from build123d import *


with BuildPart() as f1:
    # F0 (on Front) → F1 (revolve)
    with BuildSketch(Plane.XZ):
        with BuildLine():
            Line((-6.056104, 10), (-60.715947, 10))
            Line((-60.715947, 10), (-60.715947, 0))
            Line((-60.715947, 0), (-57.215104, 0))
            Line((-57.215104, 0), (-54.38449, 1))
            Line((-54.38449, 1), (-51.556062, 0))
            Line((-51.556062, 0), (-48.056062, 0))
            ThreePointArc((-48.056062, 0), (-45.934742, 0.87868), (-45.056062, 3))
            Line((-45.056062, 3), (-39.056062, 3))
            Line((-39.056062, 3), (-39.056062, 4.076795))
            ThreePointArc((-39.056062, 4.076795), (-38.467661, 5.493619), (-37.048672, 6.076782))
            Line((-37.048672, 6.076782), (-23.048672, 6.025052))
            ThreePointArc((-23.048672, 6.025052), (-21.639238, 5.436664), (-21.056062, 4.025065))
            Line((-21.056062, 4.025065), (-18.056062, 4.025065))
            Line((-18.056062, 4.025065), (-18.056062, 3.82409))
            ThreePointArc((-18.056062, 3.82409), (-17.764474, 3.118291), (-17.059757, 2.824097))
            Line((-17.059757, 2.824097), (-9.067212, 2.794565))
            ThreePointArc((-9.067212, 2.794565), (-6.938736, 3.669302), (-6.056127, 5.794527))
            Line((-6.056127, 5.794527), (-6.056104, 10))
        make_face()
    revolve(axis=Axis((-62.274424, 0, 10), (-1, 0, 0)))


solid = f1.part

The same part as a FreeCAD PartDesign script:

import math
import FreeCAD as App
import Part
import Sketcher
from FreeCAD import Vector

doc = App.newDocument("Part")
body = doc.addObject("PartDesign::Body", "Body")

# Sketch on XZ plane
sketch1 = doc.addObject("Sketcher::SketchObject", "Sketch")
body.addObject(sketch1)
sketch1.AttachmentSupport = (doc.XZ_Plane, [""])
sketch1.MapMode = "FlatFace"
sketch1.addGeometry([
    Part.LineSegment(Vector(-6.06, 10, 0), Vector(-60.72, 10, 0)),  # 0
    Part.LineSegment(Vector(-60.72, 10, 0), Vector(-60.72, 0, 0)),  # 1
    Part.LineSegment(Vector(-60.72, 0, 0), Vector(-57.22, 0, 0)),  # 2
    Part.LineSegment(Vector(-57.22, 0, 0), Vector(-54.38, 1, 0)),  # 3
    Part.LineSegment(Vector(-54.38, 1, 0), Vector(-51.56, 0, 0)),  # 4
    Part.LineSegment(Vector(-51.56, 0, 0), Vector(-48.06, 0, 0)),  # 5
    Part.ArcOfCircle(Part.Circle(Vector(-48.06, 3, 0), Vector(0, 0, 1), 3), math.radians(-90), math.radians(0)),  # 6
    Part.LineSegment(Vector(-45.06, 3, 0), Vector(-39.06, 3, 0)),  # 7
    Part.LineSegment(Vector(-39.06, 3, 0), Vector(-39.06, 4.08, 0)),  # 8
    Part.ArcOfCircle(Part.Circle(Vector(-37.06, 4.08, 0), Vector(0, 0, 1), 2), math.radians(90), math.radians(180)),  # 9
    Part.LineSegment(Vector(-37.05, 6.08, 0), Vector(-23.05, 6.03, 0)),  # 10
    Part.ArcOfCircle(Part.Circle(Vector(-23.06, 4.03, 0), Vector(0, 0, 1), 2), math.radians(0), math.radians(90)),  # 11
    Part.LineSegment(Vector(-21.06, 4.03, 0), Vector(-18.06, 4.03, 0)),  # 12
    Part.LineSegment(Vector(-18.06, 4.03, 0), Vector(-18.06, 3.82, 0)),  # 13
    Part.ArcOfCircle(Part.Circle(Vector(-17.06, 3.82, 0), Vector(0, 0, 1), 1), math.radians(-180), math.radians(-90)),  # 14
    Part.LineSegment(Vector(-17.06, 2.82, 0), Vector(-9.07, 2.79, 0)),  # 15
    Part.ArcOfCircle(Part.Circle(Vector(-9.06, 5.79, 0), Vector(0, 0, 1), 3), math.radians(-90), math.radians(0)),  # 16
    Part.LineSegment(Vector(-6.06, 5.79, 0), Vector(-6.06, 10, 0)),  # 17
], False)
sketch1.addGeometry(Part.LineSegment(Vector(-6.06, 10, 0), Vector(-60.72, 10, 0)), True)  # axis
sketch1.addConstraint([
    Sketcher.Constraint("Coincident", 0, 2, 1, 1),
    Sketcher.Constraint("Coincident", 1, 2, 2, 1),
    Sketcher.Constraint("Coincident", 2, 2, 3, 1),
    Sketcher.Constraint("Coincident", 3, 2, 4, 1),
    Sketcher.Constraint("Coincident", 4, 2, 5, 1),
    Sketcher.Constraint("Tangent", 5, 2, 6, 1),
    Sketcher.Constraint("Coincident", 6, 2, 7, 1),
    Sketcher.Constraint("Coincident", 7, 2, 8, 1),
    Sketcher.Constraint("Tangent", 8, 2, 9, 2),
    Sketcher.Constraint("Tangent", 9, 1, 10, 1),
    Sketcher.Constraint("Tangent", 10, 2, 11, 2),
    Sketcher.Constraint("Coincident", 11, 1, 12, 1),
    Sketcher.Constraint("Coincident", 12, 2, 13, 1),
    Sketcher.Constraint("Tangent", 13, 2, 14, 1),
    Sketcher.Constraint("Tangent", 14, 2, 15, 1),
    Sketcher.Constraint("Tangent", 15, 2, 16, 1),
    Sketcher.Constraint("Tangent", 16, 2, 17, 1),
    Sketcher.Constraint("Coincident", 17, 2, 0, 1),
    Sketcher.Constraint("Horizontal", 0),
    Sketcher.Constraint("Vertical", 1),
    Sketcher.Constraint("Horizontal", 2),
    Sketcher.Constraint("Horizontal", 5),
    Sketcher.Constraint("Horizontal", 7),
    Sketcher.Constraint("Vertical", 8),
    Sketcher.Constraint("Horizontal", 12),
    Sketcher.Constraint("Vertical", 13),
    Sketcher.Constraint("Horizontal", 18),
    Sketcher.Constraint("Coincident", 18, 1, 17, 2),
    Sketcher.Constraint("Equal", 9, 11),
    Sketcher.Constraint("Equal", 6, 16),
    Sketcher.Constraint("PointOnObject", 1, 2, -1),
    Sketcher.Constraint("PointOnObject", 4, 2, -1),
    Sketcher.Constraint("Parallel", 10, 15),
    Sketcher.Constraint("Vertical", 1, 2, 18, 2),
    Sketcher.Constraint("Radius", 6, 3.000001),
    Sketcher.Constraint("Radius", 9, 2.0),
    Sketcher.Constraint("Radius", 14, 1.0),
    Sketcher.Constraint("DistanceX", 7, 1, 7, 2, 6.0),
    Sketcher.Constraint("DistanceX", 12, 1, 12, 2, 3.0),
    Sketcher.Constraint("DistanceY", 1, 2, 1, 1, 10.0),
    Sketcher.Constraint("Distance", 4, 3.000001),
    Sketcher.Constraint("DistanceX", 5, 1, 5, 2, 3.5),
    Sketcher.Constraint("DistanceY", -1, 1, 3, 2, 1.0),
    Sketcher.Constraint("DistanceY", -1, 1, 6, 2, 3.0),
    Sketcher.Constraint("DistanceX", 9, 3, 11, 3, 14.0),
    Sketcher.Constraint("Distance", 15, 7.9926),
    Sketcher.Constraint("DistanceY", 15, 2, 12, 2, 1.2305),
    Sketcher.Constraint("Distance", 3, 3.002062),
    Sketcher.Constraint("DistanceX", 0, 2, 0, 1, 54.659843),
    Sketcher.Constraint("DistanceX", 2, 1, 2, 2, 3.500843),
    Sketcher.Constraint("DistanceY", 8, 1, 8, 2, 1.076795),
    Sketcher.Constraint("DistanceY", 13, 2, 13, 1, 0.200975),
    Sketcher.Constraint("DistanceX", 11, 3, -1, 1, 23.056062),
    Sketcher.Constraint("DistanceY", -1, 1, 14, 3, 3.82409),
])
revolution = doc.addObject("PartDesign::Revolution", "Revolution")
body.addObject(revolution)
revolution.Profile = sketch1
revolution.ReferenceAxis = (sketch1, ["Axis0"])
revolution.Angle = 360

doc.recompute()
